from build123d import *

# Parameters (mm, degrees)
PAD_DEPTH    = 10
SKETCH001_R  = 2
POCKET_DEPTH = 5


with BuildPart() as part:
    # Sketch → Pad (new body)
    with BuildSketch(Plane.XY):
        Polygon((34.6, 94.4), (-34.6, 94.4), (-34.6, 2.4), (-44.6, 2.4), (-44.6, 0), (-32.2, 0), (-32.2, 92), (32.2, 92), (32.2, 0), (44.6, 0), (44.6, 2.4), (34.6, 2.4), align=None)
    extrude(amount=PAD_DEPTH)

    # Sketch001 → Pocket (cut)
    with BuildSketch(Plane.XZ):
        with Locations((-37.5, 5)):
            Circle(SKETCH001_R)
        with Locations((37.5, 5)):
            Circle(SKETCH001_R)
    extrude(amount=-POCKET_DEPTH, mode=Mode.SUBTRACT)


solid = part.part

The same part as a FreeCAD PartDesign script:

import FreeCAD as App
import Part
import Sketcher

doc = App.newDocument("Part")
body = doc.addObject("PartDesign::Body", "Body")

sketch1 = body.newObject("Sketcher::SketchObject", "Sketch")
sketch1.AttachmentSupport = (doc.getObject("XY_Plane"), [""])
sketch1.MapMode = "FlatFace"
sketch1.addGeometry([
    Part.LineSegment(App.Vector(34.6, 94.4, 0), App.Vector(-34.6, 94.4, 0)),
    Part.LineSegment(App.Vector(-34.6, 94.4, 0), App.Vector(-34.6, 2.4, 0)),
    Part.LineSegment(App.Vector(-34.6, 2.4, 0), App.Vector(-44.6, 2.4, 0)),
    Part.LineSegment(App.Vector(-44.6, 2.4, 0), App.Vector(-44.6, 0, 0)),
    Part.LineSegment(App.Vector(-44.6, 0, 0), App.Vector(-32.2, 0, 0)),
    Part.LineSegment(App.Vector(-32.2, 0, 0), App.Vector(-32.2, 92, 0)),
    Part.LineSegment(App.Vector(-32.2, 92, 0), App.Vector(32.2, 92, 0)),
    Part.LineSegment(App.Vector(32.2, 92, 0), App.Vector(32.2, 0, 0)),
    Part.LineSegment(App.Vector(32.2, 0, 0), App.Vector(44.6, 0, 0)),
    Part.LineSegment(App.Vector(44.6, 0, 0), App.Vector(44.6, 2.4, 0)),
    Part.LineSegment(App.Vector(44.6, 2.4, 0), App.Vector(34.6, 2.4, 0)),
    Part.LineSegment(App.Vector(34.6, 2.4, 0), App.Vector(34.6, 94.4, 0)),
], False)
sketch1.addConstraint([
    Sketcher.Constraint("Coincident", 0, 2, 1, 1),
    Sketcher.Constraint("Coincident", 1, 2, 2, 1),
    Sketcher.Constraint("Coincident", 2, 2, 3, 1),
    Sketcher.Constraint("Coincident", 3, 2, 4, 1),
    Sketcher.Constraint("Coincident", 4, 2, 5, 1),
    Sketcher.Constraint("Coincident", 5, 2, 6, 1),
    Sketcher.Constraint("Coincident", 6, 2, 7, 1),
    Sketcher.Constraint("Coincident", 7, 2, 8, 1),
    Sketcher.Constraint("Coincident", 8, 2, 9, 1),
    Sketcher.Constraint("Coincident", 9, 2, 10, 1),
    Sketcher.Constraint("Coincident", 10, 2, 11, 1),
    Sketcher.Constraint("Coincident", 11, 2, 0, 1),
    Sketcher.Constraint("Horizontal", 0),
    Sketcher.Constraint("Vertical", 1),
    Sketcher.Constraint("Horizontal", 2),
    Sketcher.Constraint("Vertical", 3),
    Sketcher.Constraint("Horizontal", 4),
    Sketcher.Constraint("Vertical", 5),
    Sketcher.Constraint("Horizontal", 6),
    Sketcher.Constraint("Vertical", 7),
    Sketcher.Constraint("Horizontal", 8),
    Sketcher.Constraint("Vertical", 9),
    Sketcher.Constraint("Horizontal", 10),
    Sketcher.Constraint("Vertical", 11),
    Sketcher.Constraint("Symmetric", 4, 2, 7, 2, -1, 1),
    Sketcher.Constraint("Symmetric", 3, 2, 8, 2, -2),
    Sketcher.Constraint("Symmetric", 1, 2, 10, 2, -2),
    Sketcher.Constraint("Equal", 1, 5),
    Sketcher.Constraint("DistanceX", 2, 2, 2, 1, 10.0),
    Sketcher.Constraint("DistanceY", 1, 2, 1, 1, 92.0),
    Sketcher.Constraint("DistanceX", 0, 2, 0, 1, 69.2),
    Sketcher.Constraint("DistanceX", 4, 1, 4, 2, 12.4),
    Sketcher.Constraint("DistanceY", 3, 2, 3, 1, 2.4),
])
pad1 = body.newObject("PartDesign::Pad", "Pad")
pad1.Profile = sketch1
pad1.Length = 10

sketch2 = body.newObject("Sketcher::SketchObject", "Sketch001")
sketch2.AttachmentSupport = (doc.getObject("XZ_Plane"), [""])
sketch2.MapMode = "FlatFace"
sketch2.addGeometry([
    Part.Circle(App.Vector(-37.5, 5, 0), App.Vector(0, 0, 1), 2),
    Part.Circle(App.Vector(37.5, 5, 0), App.Vector(0, 0, 1), 2),
], False)
sketch2.addConstraint([
    Sketcher.Constraint("Equal", 0, 1),
    Sketcher.Constraint("Symmetric", 0, 3, 1, 3, -2),
    Sketcher.Constraint("Diameter", 0, 4.0),
    Sketcher.Constraint("DistanceY", -1, 1, 0, 3, 5.0),
    Sketcher.Constraint("DistanceX", 0, 3, 1, 3, 75.0),
])
pocket1 = body.newObject("PartDesign::Pocket", "Pocket")
pocket1.Profile = sketch2
pocket1.Length = 5

doc.recompute()
